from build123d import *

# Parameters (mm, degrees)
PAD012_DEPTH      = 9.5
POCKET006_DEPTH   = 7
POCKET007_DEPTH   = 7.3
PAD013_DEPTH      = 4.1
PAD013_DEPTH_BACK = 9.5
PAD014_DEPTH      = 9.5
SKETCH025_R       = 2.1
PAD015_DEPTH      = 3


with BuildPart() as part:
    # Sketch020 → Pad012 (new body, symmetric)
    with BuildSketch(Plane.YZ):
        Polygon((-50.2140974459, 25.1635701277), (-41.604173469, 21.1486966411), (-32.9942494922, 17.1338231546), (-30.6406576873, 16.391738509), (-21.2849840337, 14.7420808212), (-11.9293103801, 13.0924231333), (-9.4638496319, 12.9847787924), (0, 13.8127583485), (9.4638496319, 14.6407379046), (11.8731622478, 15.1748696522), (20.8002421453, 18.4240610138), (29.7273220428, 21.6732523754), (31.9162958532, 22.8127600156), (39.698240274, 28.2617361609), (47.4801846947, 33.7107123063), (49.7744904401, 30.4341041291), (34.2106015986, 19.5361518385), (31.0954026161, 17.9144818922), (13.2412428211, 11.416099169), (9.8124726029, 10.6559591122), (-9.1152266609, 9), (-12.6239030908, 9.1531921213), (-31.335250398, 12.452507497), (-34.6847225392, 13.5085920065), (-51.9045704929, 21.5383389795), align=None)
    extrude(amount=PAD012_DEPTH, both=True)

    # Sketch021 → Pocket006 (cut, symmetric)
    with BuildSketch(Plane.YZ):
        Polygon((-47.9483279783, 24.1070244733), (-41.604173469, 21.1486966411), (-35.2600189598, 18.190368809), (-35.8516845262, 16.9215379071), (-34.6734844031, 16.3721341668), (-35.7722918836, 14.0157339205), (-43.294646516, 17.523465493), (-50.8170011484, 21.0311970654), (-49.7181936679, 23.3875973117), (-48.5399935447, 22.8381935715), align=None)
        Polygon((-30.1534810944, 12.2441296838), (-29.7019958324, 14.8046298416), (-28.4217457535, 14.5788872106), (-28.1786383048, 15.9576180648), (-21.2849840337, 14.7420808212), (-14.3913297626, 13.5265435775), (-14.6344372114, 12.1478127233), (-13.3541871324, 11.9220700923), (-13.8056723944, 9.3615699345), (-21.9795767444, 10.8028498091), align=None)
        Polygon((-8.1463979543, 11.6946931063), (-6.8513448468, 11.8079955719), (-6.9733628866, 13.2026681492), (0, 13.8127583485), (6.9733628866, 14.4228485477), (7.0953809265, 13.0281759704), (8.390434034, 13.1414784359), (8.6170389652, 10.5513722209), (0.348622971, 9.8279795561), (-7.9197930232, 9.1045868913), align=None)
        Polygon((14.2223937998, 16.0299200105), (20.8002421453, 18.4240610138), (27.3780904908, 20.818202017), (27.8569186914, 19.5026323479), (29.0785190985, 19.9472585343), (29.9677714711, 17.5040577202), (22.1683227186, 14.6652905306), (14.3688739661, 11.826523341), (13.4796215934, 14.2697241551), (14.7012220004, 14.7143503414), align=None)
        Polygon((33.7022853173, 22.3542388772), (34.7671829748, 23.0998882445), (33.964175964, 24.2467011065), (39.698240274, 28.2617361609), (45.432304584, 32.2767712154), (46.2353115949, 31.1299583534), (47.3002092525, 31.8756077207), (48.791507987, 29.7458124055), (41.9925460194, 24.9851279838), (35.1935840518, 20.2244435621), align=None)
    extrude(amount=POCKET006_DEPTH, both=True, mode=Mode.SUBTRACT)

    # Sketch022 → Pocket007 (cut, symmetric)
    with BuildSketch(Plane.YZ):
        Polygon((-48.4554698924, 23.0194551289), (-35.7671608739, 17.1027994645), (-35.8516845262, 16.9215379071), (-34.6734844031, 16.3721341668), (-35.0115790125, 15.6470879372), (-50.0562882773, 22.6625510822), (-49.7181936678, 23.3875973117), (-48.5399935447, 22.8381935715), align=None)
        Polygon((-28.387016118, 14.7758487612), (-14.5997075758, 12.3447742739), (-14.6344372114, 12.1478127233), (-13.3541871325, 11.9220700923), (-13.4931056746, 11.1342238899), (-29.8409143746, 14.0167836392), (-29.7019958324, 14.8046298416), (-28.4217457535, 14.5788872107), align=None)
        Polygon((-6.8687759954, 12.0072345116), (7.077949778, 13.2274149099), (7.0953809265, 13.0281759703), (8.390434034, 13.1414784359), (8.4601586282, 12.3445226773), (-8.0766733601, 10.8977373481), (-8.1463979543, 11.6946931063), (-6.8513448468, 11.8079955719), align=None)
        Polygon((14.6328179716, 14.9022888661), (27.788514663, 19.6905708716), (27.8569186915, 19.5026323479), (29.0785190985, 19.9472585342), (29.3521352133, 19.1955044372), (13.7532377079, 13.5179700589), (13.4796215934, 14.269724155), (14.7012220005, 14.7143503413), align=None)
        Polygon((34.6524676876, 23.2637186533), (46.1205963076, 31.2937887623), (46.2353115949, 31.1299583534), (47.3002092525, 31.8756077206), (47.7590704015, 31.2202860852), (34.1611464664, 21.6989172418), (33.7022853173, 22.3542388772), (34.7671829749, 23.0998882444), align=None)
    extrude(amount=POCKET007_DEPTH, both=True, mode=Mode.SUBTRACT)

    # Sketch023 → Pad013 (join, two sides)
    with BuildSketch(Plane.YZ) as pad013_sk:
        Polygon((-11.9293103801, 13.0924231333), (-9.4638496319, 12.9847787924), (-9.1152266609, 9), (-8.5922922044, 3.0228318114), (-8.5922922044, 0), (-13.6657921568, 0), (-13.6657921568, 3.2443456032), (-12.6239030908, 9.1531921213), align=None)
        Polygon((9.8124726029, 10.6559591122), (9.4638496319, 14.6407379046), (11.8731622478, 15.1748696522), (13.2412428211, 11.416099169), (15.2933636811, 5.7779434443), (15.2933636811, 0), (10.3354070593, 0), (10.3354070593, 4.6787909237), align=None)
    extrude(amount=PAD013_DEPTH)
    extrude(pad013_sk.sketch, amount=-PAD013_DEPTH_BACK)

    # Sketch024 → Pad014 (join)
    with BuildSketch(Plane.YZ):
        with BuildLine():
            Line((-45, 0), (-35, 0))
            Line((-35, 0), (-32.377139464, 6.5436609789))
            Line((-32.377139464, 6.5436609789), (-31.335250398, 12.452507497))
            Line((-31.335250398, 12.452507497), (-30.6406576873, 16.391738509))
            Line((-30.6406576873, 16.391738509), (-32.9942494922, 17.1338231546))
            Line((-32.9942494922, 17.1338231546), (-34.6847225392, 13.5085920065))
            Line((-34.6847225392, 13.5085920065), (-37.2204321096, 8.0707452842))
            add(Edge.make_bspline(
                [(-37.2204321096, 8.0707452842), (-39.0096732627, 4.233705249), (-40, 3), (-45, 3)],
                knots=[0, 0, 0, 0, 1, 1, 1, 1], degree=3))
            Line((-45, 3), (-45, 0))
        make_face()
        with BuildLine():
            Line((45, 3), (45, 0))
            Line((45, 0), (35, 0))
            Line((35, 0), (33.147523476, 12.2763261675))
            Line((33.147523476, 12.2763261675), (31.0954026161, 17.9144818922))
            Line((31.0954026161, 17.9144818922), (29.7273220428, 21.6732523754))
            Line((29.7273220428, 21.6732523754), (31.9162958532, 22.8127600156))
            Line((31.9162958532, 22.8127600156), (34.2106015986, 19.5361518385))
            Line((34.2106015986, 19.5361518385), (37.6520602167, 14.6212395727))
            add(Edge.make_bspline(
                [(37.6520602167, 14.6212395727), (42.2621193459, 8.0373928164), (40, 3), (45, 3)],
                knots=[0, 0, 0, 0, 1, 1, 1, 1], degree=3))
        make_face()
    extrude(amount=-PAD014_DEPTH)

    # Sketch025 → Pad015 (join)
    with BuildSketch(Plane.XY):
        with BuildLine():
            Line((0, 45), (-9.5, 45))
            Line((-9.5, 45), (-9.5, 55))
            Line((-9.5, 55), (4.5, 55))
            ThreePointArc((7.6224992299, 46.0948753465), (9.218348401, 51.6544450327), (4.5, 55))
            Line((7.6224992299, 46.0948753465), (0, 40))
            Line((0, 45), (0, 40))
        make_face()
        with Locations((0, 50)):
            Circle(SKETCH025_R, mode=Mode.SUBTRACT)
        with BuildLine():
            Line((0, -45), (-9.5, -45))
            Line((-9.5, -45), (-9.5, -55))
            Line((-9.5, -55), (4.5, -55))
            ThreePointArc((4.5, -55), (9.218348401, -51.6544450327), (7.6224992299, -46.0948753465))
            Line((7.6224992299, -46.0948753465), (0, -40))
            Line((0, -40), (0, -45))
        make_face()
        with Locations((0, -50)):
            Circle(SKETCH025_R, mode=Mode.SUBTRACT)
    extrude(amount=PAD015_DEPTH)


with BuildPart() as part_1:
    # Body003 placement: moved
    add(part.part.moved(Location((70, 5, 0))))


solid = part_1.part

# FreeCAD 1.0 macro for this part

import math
import FreeCAD as App
import Part
import Sketcher
Q = App.Units.Quantity


def add_polygon(sketch, points):
    """Adds a closed chain of lines whose ends are joined by coincident constraints."""
    first, n = sketch.GeometryCount, len(points)
    for a, b in zip(points, points[1:] + points[:1]):
        sketch.addGeometry(Part.LineSegment(App.Vector(*a, 0), App.Vector(*b, 0)), False)
    for i in range(n):
        sketch.addConstraint(Sketcher.Constraint("Coincident", first + i, 2, first + (i + 1) % n, 1))

doc = App.newDocument("Part")
body = doc.addObject("PartDesign::Body", "Body")

# Sketch on YZ plane
sketch1 = body.newObject("Sketcher::SketchObject", "Sketch")
sketch1.AttachmentSupport = (doc.getObject("YZ_Plane"), [""])
sketch1.MapMode = "FlatFace"
add_polygon(sketch1, [(-41.604173, 21.148697), (-50.214097, 25.16357), (-51.90457, 21.538339), (-34.684723, 13.508592), (-31.33525, 12.452507), (-12.623903, 9.153192), (-9.115227, 9), (9.812473, 10.655959), (13.241243, 11.416099), (31.095403, 17.914482), (34.210602, 19.536152), (49.77449, 30.434104), (47.480185, 33.710712), (39.69824, 28.261736), (31.916296, 22.81276), (29.727322, 21.673252), (11.873162, 15.17487), (9.46385, 14.640738), (-9.46385, 12.984779), (-11.92931, 13.092423), (-21.284984, 14.742081), (-30.640658, 16.391739), (-32.994249, 17.133823)])  # lines 0-22
sketch1.addConstraint(Sketcher.Constraint("Perpendicular", 0, 1))
sketch1.addConstraint(Sketcher.Constraint("Perpendicular", 1, 2))
sketch1.addConstraint(Sketcher.Constraint("Perpendicular", 10, 11))
sketch1.addConstraint(Sketcher.Constraint("Perpendicular", 11, 12))
sketch1.addConstraint(Sketcher.Constraint("Parallel", 12, 13))
sketch1.addConstraint(Sketcher.Constraint("Parallel", 9, 14))
sketch1.addConstraint(Sketcher.Constraint("Parallel", 8, 15))
sketch1.addConstraint(Sketcher.Constraint("Parallel", 7, 16))
sketch1.addConstraint(Sketcher.Constraint("Parallel", 6, 17))
sketch1.addConstraint(Sketcher.Constraint("Parallel", 5, 18))
sketch1.addConstraint(Sketcher.Constraint("Parallel", 4, 19))
sketch1.addConstraint(Sketcher.Constraint("Parallel", 19, 20))
sketch1.addConstraint(Sketcher.Constraint("Parallel", 3, 21))
sketch1.addConstraint(Sketcher.Constraint("Parallel", 2, 22))
sketch1.addConstraint(Sketcher.Constraint("Equal", 2, 4))
sketch1.addConstraint(Sketcher.Constraint("Equal", 3, 5))
sketch1.addConstraint(Sketcher.Constraint("Equal", 4, 6))
sketch1.addConstraint(Sketcher.Constraint("Equal", 5, 7))
sketch1.addConstraint(Sketcher.Constraint("Equal", 6, 8))
sketch1.addConstraint(Sketcher.Constraint("Equal", 7, 9))
sketch1.addConstraint(Sketcher.Constraint("Equal", 8, 10))
sketch1.addConstraint(Sketcher.Constraint("Equal", 1, 11))
sketch1.addConstraint(Sketcher.Constraint("Equal", 0, 12))
sketch1.addConstraint(Sketcher.Constraint("Equal", 12, 13))
sketch1.addConstraint(Sketcher.Constraint("Equal", 10, 15))
sketch1.addConstraint(Sketcher.Constraint("Equal", 14, 16))
sketch1.addConstraint(Sketcher.Constraint("Equal", 15, 17))
sketch1.addConstraint(Sketcher.Constraint("Equal", 16, 18))
sketch1.addConstraint(Sketcher.Constraint("Equal", 13, 19))
sketch1.addConstraint(Sketcher.Constraint("Equal", 19, 20))
sketch1.addConstraint(Sketcher.Constraint("Equal", 18, 21))
sketch1.addConstraint(Sketcher.Constraint("Equal", 20, 22))
sketch1.addConstraint(Sketcher.Constraint("Angle", 0, Q("155 deg")))
sketch1.addConstraint(Sketcher.Constraint("Angle", 4, Q("-10 deg")))
sketch1.addConstraint(Sketcher.Constraint("Angle", 6, Q("5 deg")))
sketch1.addConstraint(Sketcher.Constraint("Angle", 8, Q("20 deg")))
sketch1.addConstraint(Sketcher.Constraint("Angle", 10, Q("35 deg")))
sketch1.addConstraint(Sketcher.Constraint("Distance", 1, Q("4 mm")))
sketch1.addConstraint(Sketcher.Constraint("Distance", 2, Q("19 mm")))
sketch1.addConstraint(Sketcher.Constraint("DistanceY", -1, 1, 5, 2, Q("9 mm")))
sketch1.addConstraint(Sketcher.Constraint("Angle", 3, Q("-17.5 deg")))
sketch1.addConstraint(Sketcher.Constraint("Angle", 5, Q("-2.5 deg")))
sketch1.addConstraint(Sketcher.Constraint("Angle", 7, Q("12.5 deg")))
sketch1.addConstraint(Sketcher.Constraint("Angle", 9, Q("27.5 deg")))
sketch1.addConstraint(Sketcher.Constraint("DistanceX", 21, 2, 3, 2, Q("1.658999 mm")))
sketch1.addConstraint(Sketcher.Constraint("DistanceX", -1, 1, 9, 2, Q("34.210602 mm")))
pad1 = body.newObject("PartDesign::Pad", "Pad")
pad1.Profile = sketch1
pad1.Length = 19
pad1.Midplane = True

# Sketch on YZ plane
sketch2 = body.newObject("Sketcher::SketchObject", "Sketch001")
sketch2.AttachmentSupport = (doc.getObject("YZ_Plane"), [""])
sketch2.MapMode = "FlatFace"
add_polygon(sketch2, [(-41.604173, 21.148697), (-47.948328, 24.107024), (-48.539994, 22.838194), (-49.718194, 23.387597), (-50.817001, 21.031197), (-43.294647, 17.523465), (-35.772292, 14.015734), (-34.673484, 16.372134), (-35.851685, 16.921538), (-35.260019, 18.190369)])  # lines 0-9
add_polygon(sketch2, [(-29.701996, 14.80463), (-30.153481, 12.24413), (-21.979577, 10.80285), (-13.805672, 9.36157), (-13.354187, 11.92207), (-14.634437, 12.147813), (-14.39133, 13.526544), (-21.284984, 14.742081), (-28.178638, 15.957618), (-28.421746, 14.578887)])  # lines 10-19
add_polygon(sketch2, [(-6.851345, 11.807996), (-8.146398, 11.694693), (-7.919793, 9.104587), (8.617039, 10.551372), (8.390434, 13.141478), (7.095381, 13.028176), (6.973363, 14.422849), (0, 13.812758), (-6.973363, 13.202668)])  # lines 20-28
add_polygon(sketch2, [(20.800242, 18.424061), (14.222394, 16.02992), (14.701222, 14.71435), (13.479622, 14.269724), (14.368874, 11.826523), (29.967771, 17.504058), (29.078519, 19.947259), (27.856919, 19.502632), (27.37809, 20.818202)])  # lines 29-37
add_polygon(sketch2, [(34.767183, 23.099888), (33.702285, 22.354239), (35.193584, 20.224444), (48.791508, 29.745812), (47.300209, 31.875608), (46.235312, 31.129958), (45.432305, 32.276771), (39.69824, 28.261736), (33.964176, 24.246701)])  # lines 38-46
sketch2.addConstraint(Sketcher.Constraint("PointOnObject", 26, 2, -2))
sketch2.addConstraint(Sketcher.Constraint("Perpendicular", 0, 1))
sketch2.addConstraint(Sketcher.Constraint("Perpendicular", 1, 2))
sketch2.addConstraint(Sketcher.Constraint("Perpendicular", 2, 3))
sketch2.addConstraint(Sketcher.Constraint("Perpendicular", 3, 4))
sketch2.addConstraint(Sketcher.Constraint("Parallel", 4, 5))
sketch2.addConstraint(Sketcher.Constraint("Perpendicular", 5, 6))
sketch2.addConstraint(Sketcher.Constraint("Perpendicular", 6, 7))
sketch2.addConstraint(Sketcher.Constraint("Perpendicular", 7, 8))
sketch2.addConstraint(Sketcher.Constraint("Perpendicular", 8, 9))
sketch2.addConstraint(Sketcher.Constraint("Perpendicular", 10, 11))
sketch2.addConstraint(Sketcher.Constraint("Parallel", 11, 12))
sketch2.addConstraint(Sketcher.Constraint("Perpendicular", 12, 13))
sketch2.addConstraint(Sketcher.Constraint("Perpendicular", 13, 14))
sketch2.addConstraint(Sketcher.Constraint("Perpendicular", 14, 15))
sketch2.addConstraint(Sketcher.Constraint("Perpendicular", 15, 16))
sketch2.addConstraint(Sketcher.Constraint("Parallel", 16, 17))
sketch2.addConstraint(Sketcher.Constraint("Perpendicular", 17, 18))
sketch2.addConstraint(Sketcher.Constraint("Perpendicular", 18, 19))
sketch2.addConstraint(Sketcher.Constraint("Perpendicular", 20, 21))
sketch2.addConstraint(Sketcher.Constraint("Perpendicular", 21, 22))
sketch2.addConstraint(Sketcher.Constraint("Perpendicular", 22, 23))
sketch2.addConstraint(Sketcher.Constraint("Perpendicular", 23, 24))
sketch2.addConstraint(Sketcher.Constraint("Perpendicular", 24, 25))
sketch2.addConstraint(Sketcher.Constraint("Perpendicular", 25, 26))
sketch2.addConstraint(Sketcher.Constraint("Parallel", 26, 27))
sketch2.addConstraint(Sketcher.Constraint("Perpendicular", 27, 28))
sketch2.addConstraint(Sketcher.Constraint("Perpendicular", 29, 30))
sketch2.addConstraint(Sketcher.Constraint("Perpendicular", 30, 31))
sketch2.addConstraint(Sketcher.Constraint("Perpendicular", 31, 32))
sketch2.addConstraint(Sketcher.Constraint("Perpendicular", 32, 33))
sketch2.addConstraint(Sketcher.Constraint("Perpendicular", 33, 34))
sketch2.addConstraint(Sketcher.Constraint("Perpendicular", 34, 35))
sketch2.addConstraint(Sketcher.Constraint("Perpendicular", 35, 36))
sketch2.addConstraint(Sketcher.Constraint("Perpendicular", 36, 37))
sketch2.addConstraint(Sketcher.Constraint("Perpendicular", 38, 39))
sketch2.addConstraint(Sketcher.Constraint("Perpendicular", 39, 40))
sketch2.addConstraint(Sketcher.Constraint("Perpendicular", 40, 41))
sketch2.addConstraint(Sketcher.Constraint("Perpendicular", 41, 42))
sketch2.addConstraint(Sketcher.Constraint("Perpendicular", 42, 43))
sketch2.addConstraint(Sketcher.Constraint("Perpendicular", 43, 44))
sketch2.addConstraint(Sketcher.Constraint("Parallel", 44, 45))
sketch2.addConstraint(Sketcher.Constraint("Perpendicular", 45, 46))
sketch2.addConstraint(Sketcher.Constraint("Equal", 4, 5))
sketch2.addConstraint(Sketcher.Constraint("Equal", 3, 6))
sketch2.addConstraint(Sketcher.Constraint("Equal", 2, 7))
sketch2.addConstraint(Sketcher.Constraint("Equal", 0, 9))
sketch2.addConstraint(Sketcher.Constraint("Equal", 6, 10))
sketch2.addConstraint(Sketcher.Constraint("Equal", 5, 11))
sketch2.addConstraint(Sketcher.Constraint("Equal", 11, 12))
sketch2.addConstraint(Sketcher.Constraint("Equal", 10, 13))
sketch2.addConstraint(Sketcher.Constraint("Equal", 7, 14))
sketch2.addConstraint(Sketcher.Constraint("Equal", 8, 15))
sketch2.addConstraint(Sketcher.Constraint("Equal", 9, 16))
sketch2.addConstraint(Sketcher.Constraint("Equal", 16, 17))
sketch2.addConstraint(Sketcher.Constraint("Equal", 19, 20))
sketch2.addConstraint(Sketcher.Constraint("Equal", 13, 21))
sketch2.addConstraint(Sketcher.Constraint("Equal", 21, 23))
sketch2.addConstraint(Sketcher.Constraint("Equal", 20, 24))
sketch2.addConstraint(Sketcher.Constraint("Equal", 18, 25))
sketch2.addConstraint(Sketcher.Constraint("Equal", 17, 26))
sketch2.addConstraint(Sketcher.Constraint("Equal", 26, 27))
sketch2.addConstraint(Sketcher.Constraint("Equal", 27, 29))
sketch2.addConstraint(Sketcher.Constraint("Equal", 28, 30))
sketch2.addConstraint(Sketcher.Constraint("Equal", 24, 31))
sketch2.addConstraint(Sketcher.Constraint("Equal", 23, 32))
sketch2.addConstraint(Sketcher.Constraint("Equal", 22, 33))
sketch2.addConstraint(Sketcher.Constraint("Equal", 32, 34))
sketch2.addConstraint(Sketcher.Constraint("Equal", 31, 35))
sketch2.addConstraint(Sketcher.Constraint("Equal", 35, 38))
sketch2.addConstraint(Sketcher.Constraint("Equal", 34, 39))
sketch2.addConstraint(Sketcher.Constraint("Equal", 33, 40))
sketch2.addConstraint(Sketcher.Constraint("Equal", 39, 41))
sketch2.addConstraint(Sketcher.Constraint("Equal", 38, 42))
sketch2.addConstraint(Sketcher.Constraint("Equal", 36, 43))
sketch2.addConstraint(Sketcher.Constraint("Equal", 37, 44))
sketch2.addConstraint(Sketcher.Constraint("Angle", 0, Q("155 deg")))
sketch2.addConstraint(Sketcher.Constraint("Angle", 10, Q("-100 deg")))
sketch2.addConstraint(Sketcher.Constraint("Angle", 20, Q("-175 deg")))
sketch2.addConstraint(Sketcher.Constraint("Angle", 29, Q("-160 deg")))
sketch2.addConstraint(Sketcher.Constraint("Angle", 38, Q("-145 deg")))
sketch2.addConstraint(Sketcher.Constraint("Distance", 0, Q("7 mm")))
sketch2.addConstraint(Sketcher.Constraint("Distance", 1, Q("1.4 mm")))
sketch2.addConstraint(Sketcher.Constraint("Distance", 2, Q("1.3 mm")))
sketch2.addConstraint(Sketcher.Constraint("Distance", 3, Q("2.6 mm")))
sketch2.addConstraint(Sketcher.Constraint("DistanceX", 3, 2, -1, 1, Q("50.817001 mm")))
sketch2.addConstraint(Sketcher.Constraint("DistanceY", -1, 1, 45, 2, Q("24.246701 mm")))
sketch2.addConstraint(Sketcher.Constraint("DistanceY", 12, 2, 8, 2, Q("8.828799 mm")))
sketch2.addConstraint(Sketcher.Constraint("DistanceY", 13, 2, 27, 2, Q("1.280598 mm")))
sketch2.addConstraint(Sketcher.Constraint("DistanceY", 25, 2, 30, 2, Q("0.291502 mm")))
sketch2.addConstraint(Sketcher.Constraint("DistanceY", 34, 2, 42, 2, Q("11.1827 mm")))
sketch2.addConstraint(Sketcher.Constraint("DistanceX", 10, 2, -1, 1, Q("30.153481 mm")))
sketch2.addConstraint(Sketcher.Constraint("DistanceX", -1, 1, 31, 2, Q("13.479622 mm")))
sketch2.addConstraint(Sketcher.Constraint("DistanceX", -1, 1, 41, 2, Q("47.300209 mm")))
pocket1 = body.newObject("PartDesign::Pocket", "Pocket")
pocket1.Profile = sketch2
pocket1.Length = 14
pocket1.Midplane = True

# Sketch on YZ plane
sketch3 = body.newObject("Sketcher::SketchObject", "Sketch002")
sketch3.AttachmentSupport = (doc.getObject("YZ_Plane"), [""])
sketch3.MapMode = "FlatFace"
add_polygon(sketch3, [(-35.767161, 17.102799), (-48.45547, 23.019455), (-48.539994, 22.838194), (-49.718194, 23.387597), (-50.056288, 22.662551), (-35.011579, 15.647088), (-34.673484, 16.372134), (-35.851685, 16.921538)])  # lines 0-7
add_polygon(sketch3, [(-14.599708, 12.344774), (-28.387016, 14.775849), (-28.421746, 14.578887), (-29.701996, 14.80463), (-29.840914, 14.016784), (-13.493106, 11.134224), (-13.354187, 11.92207), (-14.634437, 12.147813)])  # lines 8-15
add_polygon(sketch3, [(7.07795, 13.227415), (-6.868776, 12.007235), (-6.851345, 11.807996), (-8.146398, 11.694693), (-8.076673, 10.897737), (8.460159, 12.344523), (8.390434, 13.141478), (7.095381, 13.028176)])  # lines 16-23
add_polygon(sketch3, [(27.788515, 19.690571), (14.632818, 14.902289), (14.701222, 14.71435), (13.479622, 14.269724), (13.753238, 13.51797), (29.352135, 19.195504), (29.078519, 19.947259), (27.856919, 19.502632)])  # lines 24-31
add_polygon(sketch3, [(46.120596, 31.293789), (34.652468, 23.263719), (34.767183, 23.099888), (33.702285, 22.354239), (34.161146, 21.698917), (47.75907, 31.220286), (47.300209, 31.875608), (46.235312, 31.129958)])  # lines 32-39
sketch3.addConstraint(Sketcher.Constraint("Perpendicular", 0, 1))
sketch3.addConstraint(Sketcher.Constraint("Perpendicular", 1, 2))
sketch3.addConstraint(Sketcher.Constraint("Perpendicular", 2, 3))
sketch3.addConstraint(Sketcher.Constraint("Perpendicular", 3, 4))
sketch3.addConstraint(Sketcher.Constraint("Perpendicular", 4, 5))
sketch3.addConstraint(Sketcher.Constraint("Perpendicular", 5, 6))
sketch3.addConstraint(Sketcher.Constraint("Perpendicular", 6, 7))
sketch3.addConstraint(Sketcher.Constraint("Perpendicular", 8, 9))
sketch3.addConstraint(Sketcher.Constraint("Perpendicular", 9, 10))
sketch3.addConstraint(Sketcher.Constraint("Perpendicular", 10, 11))
sketch3.addConstraint(Sketcher.Constraint("Perpendicular", 11, 12))
sketch3.addConstraint(Sketcher.Constraint("Perpendicular", 12, 13))
sketch3.addConstraint(Sketcher.Constraint("Perpendicular", 13, 14))
sketch3.addConstraint(Sketcher.Constraint("Perpendicular", 14, 15))
sketch3.addConstraint(Sketcher.Constraint("Perpendicular", 16, 17))
sketch3.addConstraint(Sketcher.Constraint("Perpendicular", 17, 18))
sketch3.addConstraint(Sketcher.Constraint("Perpendicular", 18, 19))
sketch3.addConstraint(Sketcher.Constraint("Perpendicular", 19, 20))
sketch3.addConstraint(Sketcher.Constraint("Perpendicular", 20, 21))
sketch3.addConstraint(Sketcher.Constraint("Perpendicular", 21, 22))
sketch3.addConstraint(Sketcher.Constraint("Perpendicular", 22, 23))
sketch3.addConstraint(Sketcher.Constraint("Perpendicular", 24, 25))
sketch3.addConstraint(Sketcher.Constraint("Perpendicular", 25, 26))
sketch3.addConstraint(Sketcher.Constraint("Perpendicular", 26, 27))
sketch3.addConstraint(Sketcher.Constraint("Perpendicular", 27, 28))
sketch3.addConstraint(Sketcher.Constraint("Perpendicular", 28, 29))
sketch3.addConstraint(Sketcher.Constraint("Perpendicular", 29, 30))
sketch3.addConstraint(Sketcher.Constraint("Perpendicular", 30, 31))
sketch3.addConstraint(Sketcher.Constraint("Perpendicular", 32, 33))
sketch3.addConstraint(Sketcher.Constraint("Perpendicular", 33, 34))
sketch3.addConstraint(Sketcher.Constraint("Perpendicular", 34, 35))
sketch3.addConstraint(Sketcher.Constraint("Perpendicular", 35, 36))
sketch3.addConstraint(Sketcher.Constraint("Perpendicular", 36, 37))
sketch3.addConstraint(Sketcher.Constraint("Perpendicular", 37, 38))
sketch3.addConstraint(Sketcher.Constraint("Perpendicular", 38, 39))
sketch3.addConstraint(Sketcher.Constraint("Equal", 3, 5))
sketch3.addConstraint(Sketcher.Constraint("Equal", 2, 6))
sketch3.addConstraint(Sketcher.Constraint("Equal", 0, 8))
sketch3.addConstraint(Sketcher.Constraint("Equal", 7, 9))
sketch3.addConstraint(Sketcher.Constraint("Equal", 6, 10))
sketch3.addConstraint(Sketcher.Constraint("Equal", 5, 11))
sketch3.addConstraint(Sketcher.Constraint("Equal", 4, 12))
sketch3.addConstraint(Sketcher.Constraint("Equal", 11, 13))
sketch3.addConstraint(Sketcher.Constraint("Equal", 8, 16))
sketch3.addConstraint(Sketcher.Constraint("Equal", 15, 17))
sketch3.addConstraint(Sketcher.Constraint("Equal", 14, 18))
sketch3.addConstraint(Sketcher.Constraint("Equal", 13, 19))
sketch3.addConstraint(Sketcher.Constraint("Equal", 12, 20))
sketch3.addConstraint(Sketcher.Constraint("Equal", 19, 21))
sketch3.addConstraint(Sketcher.Constraint("Equal", 16, 24))
sketch3.addConstraint(Sketcher.Constraint("Equal", 23, 25))
sketch3.addConstraint(Sketcher.Constraint("Equal", 22, 26))
sketch3.addConstraint(Sketcher.Constraint("Equal", 21, 27))
sketch3.addConstraint(Sketcher.Constraint("Equal", 20, 28))
sketch3.addConstraint(Sketcher.Constraint("Equal", 27, 29))
sketch3.addConstraint(Sketcher.Constraint("Equal", 24, 32))
sketch3.addConstraint(Sketcher.Constraint("Equal", 31, 33))
sketch3.addConstraint(Sketcher.Constraint("Equal", 30, 34))
sketch3.addConstraint(Sketcher.Constraint("Equal", 29, 35))
sketch3.addConstraint(Sketcher.Constraint("Equal", 28, 36))
sketch3.addConstraint(Sketcher.Constraint("Equal", 35, 37))
sketch3.addConstraint(Sketcher.Constraint("Angle", 0, Q("155 deg")))
sketch3.addConstraint(Sketcher.Constraint("Angle", 8, Q("170 deg")))
sketch3.addConstraint(Sketcher.Constraint("Angle", 16, Q("-175 deg")))
sketch3.addConstraint(Sketcher.Constraint("Angle", 24, Q("-160 deg")))
sketch3.addConstraint(Sketcher.Constraint("Angle", 32, Q("-145 deg")))
sketch3.addConstraint(Sketcher.Constraint("Distance", 0, Q("14 mm")))
sketch3.addConstraint(Sketcher.Constraint("Distance", 1, Q("0.2 mm")))
sketch3.addConstraint(Sketcher.Constraint("Distance", 2, Q("1.3 mm")))
sketch3.addConstraint(Sketcher.Constraint("Distance", 3, Q("0.8 mm")))
sketch3.addConstraint(Sketcher.Constraint("DistanceY", -1, 1, 7, 2, Q("17.102799 mm")))
sketch3.addConstraint(Sketcher.Constraint("DistanceY", 9, 2, 4, 2, Q("1.068201 mm")))
sketch3.addConstraint(Sketcher.Constraint("DistanceY", 20, 2, 26, 2, Q("1.925201 mm")))
sketch3.addConstraint(Sketcher.Constraint("DistanceX", 21, 2, 28, 2, Q("20.961701 mm")))
sketch3.addConstraint(Sketcher.Constraint("DistanceX", 0, 2, -1, 1, Q("48.45547 mm")))
sketch3.addConstraint(Sketcher.Constraint("DistanceX", -1, 1, 20, 2, Q("8.460159 mm")))
sketch3.addConstraint(Sketcher.Constraint("DistanceY", -1, 1, 21, 2, Q("13.141478 mm")))
sketch3.addConstraint(Sketcher.Constraint("DistanceY", -1, 1, 32, 2, Q("23.263719 mm")))
sketch3.addConstraint(Sketcher.Constraint("DistanceX", -1, 1, 36, 2, Q("47.75907 mm")))
sketch3.addConstraint(Sketcher.Constraint("DistanceX", 5, 2, 8, 2, Q("6.286468 mm")))
pocket2 = body.newObject("PartDesign::Pocket", "Pocket001")
pocket2.Profile = sketch3
pocket2.Length = 14.6
pocket2.Midplane = True

# Sketch on YZ plane
sketch4 = body.newObject("Sketcher::SketchObject", "Sketch003")
sketch4.AttachmentSupport = (doc.getObject("YZ_Plane"), [""])
sketch4.MapMode = "FlatFace"
add_polygon(sketch4, [(-9.46385, 12.984779), (-11.92931, 13.092423), (-12.623903, 9.153192), (-13.665792, 3.244346), (-13.665792, 0), (-8.592292, 0), (-8.592292, 3.022832)])  # lines 0-6
add_polygon(sketch4, [(9.46385, 14.640738), (9.812473, 10.655959), (10.335407, 4.678791), (10.335407, 0), (15.293364, 0), (15.293364, 5.777943), (13.241243, 11.416099), (11.873162, 15.17487)])  # lines 7-14
sketch4.addConstraint(Sketcher.Constraint("Vertical", 3))
sketch4.addConstraint(Sketcher.Constraint("Horizontal", 4))
sketch4.addConstraint(Sketcher.Constraint("Vertical", 5))
sketch4.addConstraint(Sketcher.Constraint("Vertical", 9))
sketch4.addConstraint(Sketcher.Constraint("Horizontal", 10))
sketch4.addConstraint(Sketcher.Constraint("Vertical", 11))
sketch4.addConstraint(Sketcher.Constraint("PointOnObject", 3, 2, -1))
sketch4.addConstraint(Sketcher.Constraint("PointOnObject", 9, 2, -1))
sketch4.addConstraint(Sketcher.Constraint("Parallel", 1, 2))
sketch4.addConstraint(Sketcher.Constraint("Parallel", 6, 7))
sketch4.addConstraint(Sketcher.Constraint("Parallel", 7, 8))
sketch4.addConstraint(Sketcher.Constraint("Parallel", 12, 13))
sketch4.addConstraint(Sketcher.Constraint("Equal", 1, 7))
sketch4.addConstraint(Sketcher.Constraint("Equal", 2, 8))
sketch4.addConstraint(Sketcher.Constraint("Equal", 8, 12))
sketch4.addConstraint(Sketcher.Constraint("Equal", 7, 13))
sketch4.addConstraint(Sketcher.Constraint("Equal", 0, 14))
sketch4.addConstraint(Sketcher.Constraint("Angle", 1, Q("-100 deg")))
sketch4.addConstraint(Sketcher.Constraint("Angle", 6, Q("95 deg")))
sketch4.addConstraint(Sketcher.Constraint("Angle", 12, Q("110 deg")))
sketch4.addConstraint(Sketcher.Constraint("Distance", 1, Q("4 mm")))
sketch4.addConstraint(Sketcher.Constraint("Distance", 2, Q("6 mm")))
sketch4.addConstraint(Sketcher.Constraint("Distance", 6, Q("10 mm")))
sketch4.addConstraint(Sketcher.Constraint("Angle", 0, Q("177.5 deg")))
sketch4.addConstraint(Sketcher.Constraint("Angle", 14, Q("-167.5 deg")))
sketch4.addConstraint(Sketcher.Constraint("DistanceX", 4, 1, 4, 2, Q("5.0735 mm")))
sketch4.addConstraint(Sketcher.Constraint("DistanceY", 5, 1, 5, 2, Q("3.022832 mm")))
sketch4.addConstraint(Sketcher.Constraint("DistanceY", 9, 2, 9, 1, Q("4.678791 mm")))
sketch4.addConstraint(Sketcher.Constraint("DistanceX", 5, 2, 8, 2, Q("18.927699 mm")))
sketch4.addConstraint(Sketcher.Constraint("DistanceX", 0, 2, -1, 1, Q("11.92931 mm")))
pad2 = body.newObject("PartDesign::Pad", "Pad001")
pad2.Profile = sketch4
pad2.Type = "TwoLengths"
pad2.Length = 4.1
pad2.Length2 = 9.5

# Sketch on YZ plane
sketch5 = body.newObject("Sketcher::SketchObject", "Sketch004")
sketch5.AttachmentSupport = (doc.getObject("YZ_Plane"), [""])
sketch5.MapMode = "FlatFace"
sketch5.addGeometry(Part.LineSegment(App.Vector(-45, 0, 0), App.Vector(-35, 0, 0)), False)
sketch5.addGeometry(Part.LineSegment(App.Vector(-35, 0, 0), App.Vector(-32.377139, 6.543661, 0)), False)
sketch5.addGeometry(Part.LineSegment(App.Vector(-32.377139, 6.543661, 0), App.Vector(-31.33525, 12.452507, 0)), False)
sketch5.addGeometry(Part.LineSegment(App.Vector(-31.33525, 12.452507, 0), App.Vector(-30.640658, 16.391739, 0)), False)
sketch5.addGeometry(Part.LineSegment(App.Vector(-30.640658, 16.391739, 0), App.Vector(-32.994249, 17.133823, 0)), False)
sketch5.addGeometry(Part.LineSegment(App.Vector(-32.994249, 17.133823, 0), App.Vector(-34.684723, 13.508592, 0)), False)
sketch5.addGeometry(Part.LineSegment(App.Vector(-34.684723, 13.508592, 0), App.Vector(-37.220432, 8.070745, 0)), False)
sketch5.addGeometry(Part.BSplineCurve([App.Vector(-37.220432, 8.070745, 0), App.Vector(-39.009673, 4.233705, 0), App.Vector(-40, 3, 0), App.Vector(-45, 3, 0)], [4, 4], [0, 1], False, 3, [1, 1, 1, 1], False), False)
sketch5.addGeometry(Part.LineSegment(App.Vector(-45, 3, 0), App.Vector(-45, 0, 0)), False)
sketch5.addGeometry(Part.LineSegment(App.Vector(45, 0, 0), App.Vector(45, 3, 0)), False)
sketch5.addGeometry(Part.BSplineCurve([App.Vector(37.65206, 14.62124, 0), App.Vector(42.262119, 8.037393, 0), App.Vector(40, 3, 0), App.Vector(45, 3, 0)], [4, 4], [0, 1], False, 3, [1, 1, 1, 1], False), False)
sketch5.addGeometry(Part.LineSegment(App.Vector(37.65206, 14.62124, 0), App.Vector(34.210602, 19.536152, 0)), False)
sketch5.addGeometry(Part.LineSegment(App.Vector(34.210602, 19.536152, 0), App.Vector(31.916296, 22.81276, 0)), False)
sketch5.addGeometry(Part.LineSegment(App.Vector(31.916296, 22.81276, 0), App.Vector(29.727322, 21.673252, 0)), False)
sketch5.addGeometry(Part.LineSegment(App.Vector(29.727322, 21.673252, 0), App.Vector(31.095403, 17.914482, 0)), False)
sketch5.addGeometry(Part.LineSegment(App.Vector(31.095403, 17.914482, 0), App.Vector(33.147523, 12.276326, 0)), False)
sketch5.addGeometry(Part.LineSegment(App.Vector(33.147523, 12.276326, 0), App.Vector(35, 0, 0)), False)
sketch5.addGeometry(Part.LineSegment(App.Vector(35, 0, 0), App.Vector(45, 0, 0)), False)
sketch5.addConstraint(Sketcher.Constraint("Block", 7))
sketch5.addConstraint(Sketcher.Constraint("Block", 10))
sketch5.addConstraint(Sketcher.Constraint("Coincident", 0, 2, 1, 1))
sketch5.addConstraint(Sketcher.Constraint("Coincident", 1, 2, 2, 1))
sketch5.addConstraint(Sketcher.Constraint("Coincident", 2, 2, 3, 1))
sketch5.addConstraint(Sketcher.Constraint("Coincident", 3, 2, 4, 1))
sketch5.addConstraint(Sketcher.Constraint("Coincident", 4, 2, 5, 1))
sketch5.addConstraint(Sketcher.Constraint("Coincident", 5, 2, 6, 1))
sketch5.addConstraint(Sketcher.Constraint("Coincident", 6, 2, 7, 1))
sketch5.addConstraint(Sketcher.Constraint("Coincident", 7, 2, 8, 1))
sketch5.addConstraint(Sketcher.Constraint("Coincident", 8, 2, 0, 1))
sketch5.addConstraint(Sketcher.Constraint("Coincident", 9, 2, 10, 2))
sketch5.addConstraint(Sketcher.Constraint("Coincident", 10, 1, 11, 1))
sketch5.addConstraint(Sketcher.Constraint("Coincident", 11, 2, 12, 1))
sketch5.addConstraint(Sketcher.Constraint("Coincident", 12, 2, 13, 1))
sketch5.addConstraint(Sketcher.Constraint("Coincident", 13, 2, 14, 1))
sketch5.addConstraint(Sketcher.Constraint("Coincident", 14, 2, 15, 1))
sketch5.addConstraint(Sketcher.Constraint("Coincident", 15, 2, 16, 1))
sketch5.addConstraint(Sketcher.Constraint("Coincident", 16, 2, 17, 1))
sketch5.addConstraint(Sketcher.Constraint("Coincident", 17, 2, 9, 1))
sketch5.addConstraint(Sketcher.Constraint("Horizontal", 0))
sketch5.addConstraint(Sketcher.Constraint("Vertical", 8))
sketch5.addConstraint(Sketcher.Constraint("Vertical", 9))
sketch5.addConstraint(Sketcher.Constraint("Horizontal", 17))
sketch5.addConstraint(Sketcher.Constraint("Symmetric", 0, 2, 16, 2, -1, 1))
sketch5.addConstraint(Sketcher.Constraint("PointOnObject", 0, 2, -1))
sketch5.addConstraint(Sketcher.Constraint("Parallel", 2, 3))
sketch5.addConstraint(Sketcher.Constraint("Parallel", 5, 6))
sketch5.addConstraint(Sketcher.Constraint("Parallel", 11, 12))
sketch5.addConstraint(Sketcher.Constraint("Parallel", 14, 15))
sketch5.addConstraint(Sketcher.Constraint("Equal", 3, 5))
sketch5.addConstraint(Sketcher.Constraint("Equal", 2, 6))
sketch5.addConstraint(Sketcher.Constraint("Equal", 6, 11))
sketch5.addConstraint(Sketcher.Constraint("Equal", 5, 12))
sketch5.addConstraint(Sketcher.Constraint("Equal", 4, 13))
sketch5.addConstraint(Sketcher.Constraint("Equal", 12, 14))
sketch5.addConstraint(Sketcher.Constraint("Equal", 11, 15))
sketch5.addConstraint(Sketcher.Constraint("DistanceX", 0, 1, 0, 2, Q("10 mm")))
sketch5.addConstraint(Sketcher.Constraint("Angle", 2, Q("80 deg")))
sketch5.addConstraint(Sketcher.Constraint("Angle", 5, Q("-115 deg")))
sketch5.addConstraint(Sketcher.Constraint("Angle", 11, Q("125 deg")))
sketch5.addConstraint(Sketcher.Constraint("Angle", 14, Q("-70 deg")))
sketch5.addConstraint(Sketcher.Constraint("Distance", 2, Q("6 mm")))
sketch5.addConstraint(Sketcher.Constraint("Distance", 3, Q("4 mm")))
sketch5.addConstraint(Sketcher.Constraint("Angle", 4, Q("162.5 deg")))
sketch5.addConstraint(Sketcher.Constraint("Angle", 13, Q("-152.5 deg")))
sketch5.addConstraint(Sketcher.Constraint("DistanceX", 4, 2, 2, 2, Q("1.658999 mm")))
pad3 = body.newObject("PartDesign::Pad", "Pad002")
pad3.Profile = sketch5
pad3.Length = 9.5
pad3.Reversed = True

# Sketch on XY plane
sketch6 = body.newObject("Sketcher::SketchObject", "Sketch005")
sketch6.AttachmentSupport = (doc.getObject("XY_Plane"), [""])
sketch6.MapMode = "FlatFace"
sketch6.addGeometry(Part.LineSegment(App.Vector(-9.5, 45, 0), App.Vector(0, 45, 0)), False)
sketch6.addGeometry(Part.LineSegment(App.Vector(0, 45, 0), App.Vector(0, 40, 0)), False)
sketch6.addGeometry(Part.LineSegment(App.Vector(0, 40, 0), App.Vector(7.622499, 46.094875, 0)), False)
sketch6.addGeometry(Part.ArcOfCircle(Part.Circle(App.Vector(4.5, 50, 0), App.Vector(0, 0, 1), 5), math.radians(-51.354513), math.radians(90)), False)
sketch6.addGeometry(Part.LineSegment(App.Vector(4.5, 55, 0), App.Vector(-9.5, 55, 0)), False)
sketch6.addGeometry(Part.LineSegment(App.Vector(-9.5, 55, 0), App.Vector(-9.5, 45, 0)), False)
sketch6.addGeometry(Part.Circle(App.Vector(0, 50, 0), App.Vector(0, 0, 1), 2.1), False)
sketch6.addGeometry(Part.LineSegment(App.Vector(0, -45, 0), App.Vector(-9.5, -45, 0)), False)
sketch6.addGeometry(Part.LineSegment(App.Vector(-9.5, -45, 0), App.Vector(-9.5, -55, 0)), False)
sketch6.addGeometry(Part.LineSegment(App.Vector(-9.5, -55, 0), App.Vector(4.5, -55, 0)), False)
sketch6.addGeometry(Part.ArcOfCircle(Part.Circle(App.Vector(4.5, -50, 0), App.Vector(0, 0, 1), 5), math.radians(-90), math.radians(51.354513)), False)
sketch6.addGeometry(Part.LineSegment(App.Vector(7.622499, -46.094875, 0), App.Vector(0, -40, 0)), False)
sketch6.addGeometry(Part.LineSegment(App.Vector(0, -40, 0), App.Vector(0, -45, 0)), False)
sketch6.addGeometry(Part.Circle(App.Vector(0, -50, 0), App.Vector(0, 0, 1), 2.1), False)
sketch6.addConstraint(Sketcher.Constraint("Coincident", 0, 2, 1, 1))
sketch6.addConstraint(Sketcher.Constraint("Coincident", 1, 2, 2, 1))
sketch6.addConstraint(Sketcher.Constraint("Tangent", 2, 2, 3, 1))
sketch6.addConstraint(Sketcher.Constraint("Tangent", 3, 2, 4, 1))
sketch6.addConstraint(Sketcher.Constraint("Coincident", 4, 2, 5, 1))
sketch6.addConstraint(Sketcher.Constraint("Coincident", 5, 2, 0, 1))
sketch6.addConstraint(Sketcher.Constraint("Coincident", 7, 2, 8, 1))
sketch6.addConstraint(Sketcher.Constraint("Coincident", 8, 2, 9, 1))
sketch6.addConstraint(Sketcher.Constraint("Tangent", 9, 2, 10, 1))
sketch6.addConstraint(Sketcher.Constraint("Tangent", 10, 2, 11, 1))
sketch6.addConstraint(Sketcher.Constraint("Coincident", 11, 2, 12, 1))
sketch6.addConstraint(Sketcher.Constraint("Coincident", 12, 2, 7, 1))
sketch6.addConstraint(Sketcher.Constraint("Horizontal", 0))
sketch6.addConstraint(Sketcher.Constraint("Vertical", 1))
sketch6.addConstraint(Sketcher.Constraint("Horizontal", 4))
sketch6.addConstraint(Sketcher.Constraint("Vertical", 5))
sketch6.addConstraint(Sketcher.Constraint("Horizontal", 7))
sketch6.addConstraint(Sketcher.Constraint("Vertical", 8))
sketch6.addConstraint(Sketcher.Constraint("Horizontal", 9))
sketch6.addConstraint(Sketcher.Constraint("Vertical", 12))
sketch6.addConstraint(Sketcher.Constraint("Equal", 3, 10))
sketch6.addConstraint(Sketcher.Constraint("Equal", 6, 13))
sketch6.addConstraint(Sketcher.Constraint("Symmetric", 6, 3, 13, 3, -1, 1))
sketch6.addConstraint(Sketcher.Constraint("Symmetric", 1, 2, 11, 2, -1, 1))
sketch6.addConstraint(Sketcher.Constraint("Symmetric", 3, 3, 10, 3, -1))
sketch6.addConstraint(Sketcher.Constraint("Symmetric", 5, 2, 7, 2, -1))
sketch6.addConstraint(Sketcher.Constraint("PointOnObject", 6, 3, -2))
sketch6.addConstraint(Sketcher.Constraint("PointOnObject", 0, 2, -2))
sketch6.addConstraint(Sketcher.Constraint("Horizontal", 3, 3, 6, 3))
sketch6.addConstraint(Sketcher.Constraint("Radius", 3, Q("5 mm")))
sketch6.addConstraint(Sketcher.Constraint("Diameter", 6, Q("4.2 mm")))
sketch6.addConstraint(Sketcher.Constraint("DistanceX", 4, 2, 4, 1, Q("14 mm")))
sketch6.addConstraint(Sketcher.Constraint("DistanceY", 1, 2, 1, 1, Q("5 mm")))
sketch6.addConstraint(Sketcher.Constraint("DistanceY", 5, 2, 5, 1, Q("10 mm")))
sketch6.addConstraint(Sketcher.Constraint("DistanceX", 0, 1, 0, 2, Q("9.5 mm")))
sketch6.addConstraint(Sketcher.Constraint("DistanceY", -1, 1, 3, 3, Q("50 mm")))
pad4 = body.newObject("PartDesign::Pad", "Pad003")
pad4.Profile = sketch6
pad4.Length = 3
body2 = doc.addObject("PartDesign::Body", "Body001")
doc.recompute()

body.Placement = App.Placement(App.Vector(70, 5, 0), App.Rotation(App.Vector(0, 0, 1), 0))
boolean = body2.newObject("PartDesign::Boolean", "Boolean")
boolean.Type = "Fuse"
boolean.addObjects([body])

doc.recompute()
